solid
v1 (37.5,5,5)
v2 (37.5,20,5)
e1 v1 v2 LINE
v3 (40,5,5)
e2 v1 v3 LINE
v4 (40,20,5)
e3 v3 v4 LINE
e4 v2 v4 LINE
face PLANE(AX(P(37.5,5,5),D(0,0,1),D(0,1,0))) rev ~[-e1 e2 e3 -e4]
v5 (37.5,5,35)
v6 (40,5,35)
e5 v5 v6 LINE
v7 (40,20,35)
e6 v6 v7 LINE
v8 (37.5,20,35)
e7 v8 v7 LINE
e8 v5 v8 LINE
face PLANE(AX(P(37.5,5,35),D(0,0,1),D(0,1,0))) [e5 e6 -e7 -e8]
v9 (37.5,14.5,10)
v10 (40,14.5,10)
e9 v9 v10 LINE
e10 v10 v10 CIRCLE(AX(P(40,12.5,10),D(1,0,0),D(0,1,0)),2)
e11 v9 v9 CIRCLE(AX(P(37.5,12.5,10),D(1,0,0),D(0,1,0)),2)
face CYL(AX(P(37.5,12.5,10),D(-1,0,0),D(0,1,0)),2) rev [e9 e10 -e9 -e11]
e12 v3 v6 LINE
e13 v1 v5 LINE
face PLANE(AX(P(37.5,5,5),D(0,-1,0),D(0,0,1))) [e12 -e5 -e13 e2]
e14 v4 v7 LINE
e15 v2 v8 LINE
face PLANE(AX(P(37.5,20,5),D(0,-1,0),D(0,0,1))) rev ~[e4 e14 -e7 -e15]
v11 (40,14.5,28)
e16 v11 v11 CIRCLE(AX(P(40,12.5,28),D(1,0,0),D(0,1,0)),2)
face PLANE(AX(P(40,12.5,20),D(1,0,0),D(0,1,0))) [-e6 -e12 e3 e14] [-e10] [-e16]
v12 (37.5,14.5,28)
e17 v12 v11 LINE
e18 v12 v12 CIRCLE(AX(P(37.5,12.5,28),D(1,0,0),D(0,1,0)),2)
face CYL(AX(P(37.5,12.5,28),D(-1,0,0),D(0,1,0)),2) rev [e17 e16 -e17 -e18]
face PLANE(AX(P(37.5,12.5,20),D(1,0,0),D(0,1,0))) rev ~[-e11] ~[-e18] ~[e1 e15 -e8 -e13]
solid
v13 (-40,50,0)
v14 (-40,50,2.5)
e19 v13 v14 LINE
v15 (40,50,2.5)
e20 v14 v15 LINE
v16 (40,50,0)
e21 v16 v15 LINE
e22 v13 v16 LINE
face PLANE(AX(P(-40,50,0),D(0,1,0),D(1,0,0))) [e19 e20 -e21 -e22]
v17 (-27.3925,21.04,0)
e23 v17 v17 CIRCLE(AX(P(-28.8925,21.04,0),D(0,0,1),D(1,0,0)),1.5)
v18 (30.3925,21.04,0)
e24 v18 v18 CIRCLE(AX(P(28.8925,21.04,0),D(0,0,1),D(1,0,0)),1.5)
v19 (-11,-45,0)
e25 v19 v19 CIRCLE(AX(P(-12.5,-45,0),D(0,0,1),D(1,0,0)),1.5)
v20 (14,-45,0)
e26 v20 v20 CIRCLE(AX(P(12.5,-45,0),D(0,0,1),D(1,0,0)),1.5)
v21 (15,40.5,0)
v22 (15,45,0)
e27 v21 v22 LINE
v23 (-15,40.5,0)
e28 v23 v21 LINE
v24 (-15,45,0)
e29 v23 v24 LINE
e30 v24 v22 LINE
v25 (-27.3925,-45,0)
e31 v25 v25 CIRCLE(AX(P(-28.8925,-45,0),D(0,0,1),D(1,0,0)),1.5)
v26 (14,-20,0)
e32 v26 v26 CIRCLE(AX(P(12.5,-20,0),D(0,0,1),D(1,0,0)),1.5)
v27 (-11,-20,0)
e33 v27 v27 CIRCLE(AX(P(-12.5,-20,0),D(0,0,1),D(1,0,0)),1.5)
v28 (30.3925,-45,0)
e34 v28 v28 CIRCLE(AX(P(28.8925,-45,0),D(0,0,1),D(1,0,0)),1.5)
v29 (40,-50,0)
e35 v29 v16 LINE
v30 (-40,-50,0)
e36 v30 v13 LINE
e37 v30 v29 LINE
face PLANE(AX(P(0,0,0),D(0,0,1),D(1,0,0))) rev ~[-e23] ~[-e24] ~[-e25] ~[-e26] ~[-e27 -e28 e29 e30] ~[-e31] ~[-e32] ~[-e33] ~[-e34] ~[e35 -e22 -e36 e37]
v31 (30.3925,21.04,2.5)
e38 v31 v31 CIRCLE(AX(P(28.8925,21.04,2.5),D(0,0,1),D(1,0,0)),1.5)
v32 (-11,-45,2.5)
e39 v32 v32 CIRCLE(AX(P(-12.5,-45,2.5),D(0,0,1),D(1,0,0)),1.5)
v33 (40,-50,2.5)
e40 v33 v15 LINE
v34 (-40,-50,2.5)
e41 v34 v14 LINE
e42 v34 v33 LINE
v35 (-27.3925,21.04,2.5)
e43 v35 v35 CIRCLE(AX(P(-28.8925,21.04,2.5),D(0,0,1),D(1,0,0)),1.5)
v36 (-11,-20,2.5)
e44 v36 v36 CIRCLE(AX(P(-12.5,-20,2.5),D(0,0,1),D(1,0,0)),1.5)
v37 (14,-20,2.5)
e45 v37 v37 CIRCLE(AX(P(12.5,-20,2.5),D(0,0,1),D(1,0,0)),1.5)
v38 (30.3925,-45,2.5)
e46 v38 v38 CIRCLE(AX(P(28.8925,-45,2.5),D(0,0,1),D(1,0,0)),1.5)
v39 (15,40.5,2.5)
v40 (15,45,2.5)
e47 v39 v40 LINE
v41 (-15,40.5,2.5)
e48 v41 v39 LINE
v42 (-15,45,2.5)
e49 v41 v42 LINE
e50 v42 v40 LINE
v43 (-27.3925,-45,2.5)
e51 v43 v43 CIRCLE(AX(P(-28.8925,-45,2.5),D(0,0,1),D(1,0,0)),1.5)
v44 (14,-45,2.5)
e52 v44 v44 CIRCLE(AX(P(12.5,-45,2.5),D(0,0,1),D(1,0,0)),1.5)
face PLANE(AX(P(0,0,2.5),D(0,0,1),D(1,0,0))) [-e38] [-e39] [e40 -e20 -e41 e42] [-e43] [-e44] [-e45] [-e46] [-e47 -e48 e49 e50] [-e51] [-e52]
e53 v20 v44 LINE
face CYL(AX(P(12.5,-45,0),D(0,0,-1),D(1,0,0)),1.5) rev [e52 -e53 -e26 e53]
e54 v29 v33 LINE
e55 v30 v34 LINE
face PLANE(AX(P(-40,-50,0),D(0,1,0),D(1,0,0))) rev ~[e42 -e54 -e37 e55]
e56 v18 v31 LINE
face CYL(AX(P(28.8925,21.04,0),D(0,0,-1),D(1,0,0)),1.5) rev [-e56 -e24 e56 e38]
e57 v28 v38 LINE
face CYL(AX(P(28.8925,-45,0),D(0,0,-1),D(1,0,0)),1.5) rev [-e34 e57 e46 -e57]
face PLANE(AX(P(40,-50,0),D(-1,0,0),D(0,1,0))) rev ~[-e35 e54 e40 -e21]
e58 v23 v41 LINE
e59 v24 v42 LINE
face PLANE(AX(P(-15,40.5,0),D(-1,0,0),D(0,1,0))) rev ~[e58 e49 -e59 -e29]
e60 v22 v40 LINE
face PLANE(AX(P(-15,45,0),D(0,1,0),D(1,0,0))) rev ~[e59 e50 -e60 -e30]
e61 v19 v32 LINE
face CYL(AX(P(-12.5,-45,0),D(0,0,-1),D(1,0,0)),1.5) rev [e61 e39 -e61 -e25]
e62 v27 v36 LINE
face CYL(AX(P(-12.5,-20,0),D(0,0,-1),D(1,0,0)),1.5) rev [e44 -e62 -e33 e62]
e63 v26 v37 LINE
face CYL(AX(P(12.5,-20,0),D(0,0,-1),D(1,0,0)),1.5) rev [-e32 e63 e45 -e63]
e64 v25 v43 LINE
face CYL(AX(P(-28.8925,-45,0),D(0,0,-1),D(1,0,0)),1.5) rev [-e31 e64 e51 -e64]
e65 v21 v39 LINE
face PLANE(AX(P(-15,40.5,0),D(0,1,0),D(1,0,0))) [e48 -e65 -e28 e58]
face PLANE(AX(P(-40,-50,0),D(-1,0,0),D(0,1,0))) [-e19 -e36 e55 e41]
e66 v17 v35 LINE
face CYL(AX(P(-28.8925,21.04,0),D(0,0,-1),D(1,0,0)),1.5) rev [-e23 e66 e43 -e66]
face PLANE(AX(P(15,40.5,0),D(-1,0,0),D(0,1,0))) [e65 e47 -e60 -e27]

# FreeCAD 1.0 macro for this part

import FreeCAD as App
import Part
import Sketcher

doc = App.newDocument("Part")
params = doc.addObject("Spreadsheet::Sheet", "Params")
for row, (alias, value) in enumerate([
    ("sketch1_diameter", "3 mm"),
    ("sketch1_width", "80 mm"),
    ("sketch1_width2", "30 mm"),
    ("sketch1_height", "100 mm"),
    ("sketch1_height2", "4.5 mm"),
    ("pad1_length", "2.5 mm"),
    ("sketch2_diameter", "4 mm"),
    ("sketch2_width", "15 mm"),
    ("sketch2_height", "30 mm"),
    ("pad2_length", "2.5 mm"),
], start=1):
    params.set(f"A{row}", alias)
    params.set(f"B{row}", "=" + value)
    params.setAlias(f"B{row}", alias)

body = doc.addObject("PartDesign::Body", "Body")

sketch1 = body.newObject("Sketcher::SketchObject", "Sketch")
sketch1.AttachmentSupport = (doc.getObject("XY_Plane"), [""])
sketch1.MapMode = "FlatFace"
sketch1.addGeometry([
    Part.LineSegment(App.Vector(-40, 50, 0), App.Vector(-40, -50, 0)),
    Part.LineSegment(App.Vector(-40, -50, 0), App.Vector(40, -50, 0)),
    Part.LineSegment(App.Vector(40, -50, 0), App.Vector(40, 50, 0)),
    Part.LineSegment(App.Vector(40, 50, 0), App.Vector(-40, 50, 0)),
    Part.Circle(App.Vector(-28.8925, -45, 0), App.Vector(0, 0, 1), 1.5),
    Part.Circle(App.Vector(-12.5, -45, 0), App.Vector(0, 0, 1), 1.5),
    Part.Circle(App.Vector(-12.5, -20, 0), App.Vector(0, 0, 1), 1.5),
    Part.Circle(App.Vector(12.5, -45, 0), App.Vector(0, 0, 1), 1.5),
    Part.Circle(App.Vector(28.8925, -45, 0), App.Vector(0, 0, 1), 1.5),
    Part.Circle(App.Vector(12.5, -20, 0), App.Vector(0, 0, 1), 1.5),
    Part.Circle(App.Vector(-28.8925, 21.04, 0), App.Vector(0, 0, 1), 1.5),
    Part.Circle(App.Vector(28.8925, 21.04, 0), App.Vector(0, 0, 1), 1.5),
    Part.LineSegment(App.Vector(15, 40.5, 0), App.Vector(-15, 40.5, 0)),
    Part.LineSegment(App.Vector(-15, 40.5, 0), App.Vector(-15, 45, 0)),
    Part.LineSegment(App.Vector(-15, 45, 0), App.Vector(15, 45, 0)),
    Part.LineSegment(App.Vector(15, 45, 0), App.Vector(15, 40.5, 0)),
], False)
sketch1.addConstraint([
    Sketcher.Constraint("Coincident", 0, 2, 1, 1),
    Sketcher.Constraint("Coincident", 1, 2, 2, 1),
    Sketcher.Constraint("Coincident", 2, 2, 3, 1),
    Sketcher.Constraint("Coincident", 3, 2, 0, 1),
    Sketcher.Constraint("Coincident", 12, 2, 13, 1),
    Sketcher.Constraint("Coincident", 13, 2, 14, 1),
    Sketcher.Constraint("Coincident", 14, 2, 15, 1),
    Sketcher.Constraint("Coincident", 15, 2, 12, 1),
    Sketcher.Constraint("Vertical", 0),
    Sketcher.Constraint("Horizontal", 1),
    Sketcher.Constraint("Vertical", 2),
    Sketcher.Constraint("Horizontal", 3),
    Sketcher.Constraint("Horizontal", 12),
    Sketcher.Constraint("Vertical", 13),
    Sketcher.Constraint("Horizontal", 14),
    Sketcher.Constraint("Vertical", 15),
    Sketcher.Constraint("Equal", 4, 5),
    Sketcher.Constraint("Equal", 5, 6),
    Sketcher.Constraint("Equal", 6, 7),
    Sketcher.Constraint("Equal", 7, 8),
    Sketcher.Constraint("Equal", 8, 9),
    Sketcher.Constraint("Equal", 9, 10),
    Sketcher.Constraint("Equal", 10, 11),
    Sketcher.Constraint("Symmetric", 0, 2, 2, 2, -1, 1),
    Sketcher.Constraint("Symmetric", 5, 3, 7, 3, -2),
    Sketcher.Constraint("Symmetric", 4, 3, 8, 3, -2),
    Sketcher.Constraint("Symmetric", 6, 3, 9, 3, -2),
    Sketcher.Constraint("Symmetric", 10, 3, 11, 3, -2),
    Sketcher.Constraint("Horizontal", 4, 3, 5, 3),
    Sketcher.Constraint("Vertical", 5, 3, 6, 3),
    Sketcher.Constraint("Vertical", 4, 3, 10, 3),
    Sketcher.Constraint("Diameter", 4, 3.0),
    Sketcher.Constraint("DistanceX", 1, 1, 1, 2, 80.0),
    Sketcher.Constraint("DistanceX", 12, 2, 12, 1, 30.0),
    Sketcher.Constraint("DistanceY", 0, 2, 0, 1, 100.0),
    Sketcher.Constraint("DistanceY", 13, 1, 13, 2, 4.5),
    Sketcher.Constraint("DistanceY", 4, 3, -1, 1, 45.0),
    Sketcher.Constraint("DistanceY", 6, 3, -1, 1, 20.0),
    Sketcher.Constraint("DistanceX", 12, 2, -1, 1, 15.0),
    Sketcher.Constraint("DistanceY", -1, 1, 13, 2, 45.0),
    Sketcher.Constraint("DistanceX", 5, 3, 7, 3, 25.0),
    Sketcher.Constraint("DistanceY", -1, 1, 10, 3, 21.04),
    Sketcher.Constraint("DistanceX", 4, 3, 8, 3, 57.785),
])
sketch1.setExpression("Constraints[31]", "Params.sketch1_diameter")
sketch1.setExpression("Constraints[32]", "Params.sketch1_width")
sketch1.setExpression("Constraints[33]", "Params.sketch1_width2")
sketch1.setExpression("Constraints[34]", "Params.sketch1_height")
sketch1.setExpression("Constraints[35]", "Params.sketch1_height2")
pad1 = body.newObject("PartDesign::Pad", "Pad")
pad1.Profile = sketch1
pad1.setExpression("Length", "Params.pad1_length")
body2 = doc.addObject("PartDesign::Body", "Body001")

sketch2 = body2.newObject("Sketcher::SketchObject", "Sketch001")
sketch2.AttachmentSupport = (doc.getObject("YZ_Plane001"), [""])
sketch2.MapMode = "FlatFace"
sketch2.addGeometry([
    Part.LineSegment(App.Vector(5, 35, 0), App.Vector(5, 5, 0)),
    Part.LineSegment(App.Vector(5, 5, 0), App.Vector(20, 5, 0)),
    Part.LineSegment(App.Vector(20, 5, 0), App.Vector(20, 35, 0)),
    Part.LineSegment(App.Vector(20, 35, 0), App.Vector(5, 35, 0)),
    Part.Circle(App.Vector(12.5, 10, 0), App.Vector(0, 0, 1), 2),
    Part.Circle(App.Vector(12.5, 28, 0), App.Vector(0, 0, 1), 2),
], False)
sketch2.addConstraint([
    Sketcher.Constraint("Coincident", 0, 2, 1, 1),
    Sketcher.Constraint("Coincident", 1, 2, 2, 1),
    Sketcher.Constraint("Coincident", 2, 2, 3, 1),
    Sketcher.Constraint("Coincident", 3, 2, 0, 1),
    Sketcher.Constraint("Vertical", 0),
    Sketcher.Constraint("Horizontal", 1),
    Sketcher.Constraint("Vertical", 2),
    Sketcher.Constraint("Horizontal", 3),
    Sketcher.Constraint("Equal", 4, 5),
    Sketcher.Constraint("Vertical", 4, 3, 5, 3),
    Sketcher.Constraint("Diameter", 4, 4.0),
    Sketcher.Constraint("DistanceX", 1, 1, 1, 2, 15.0),
    Sketcher.Constraint("DistanceY", 0, 2, 0, 1, 30.0),
    Sketcher.Constraint("DistanceY", -1, 1, 4, 3, 10.0),
    Sketcher.Constraint("DistanceY", -1, 1, 5, 3, 28.0),
    Sketcher.Constraint("DistanceX", -1, 1, 0, 2, 5.0),
    Sketcher.Constraint("DistanceY", -1, 1, 0, 2, 5.0),
    Sketcher.Constraint("DistanceX", -1, 1, 4, 3, 12.5),
])
sketch2.setExpression("Constraints[10]", "Params.sketch2_diameter")
sketch2.setExpression("Constraints[11]", "Params.sketch2_width")
sketch2.setExpression("Constraints[12]", "Params.sketch2_height")
pad2 = body2.newObject("PartDesign::Pad", "Pad001")
pad2.Profile = sketch2
pad2.setExpression("Length", "Params.pad2_length")
body3 = doc.addObject("PartDesign::Body", "Body002")
doc.recompute()

body2.Placement = App.Placement(App.Vector(37.5, 0, 0), App.Rotation(App.Vector(0, 0, 1), 0))
boolean = body3.newObject("PartDesign::Boolean", "Boolean")
boolean.Type = "Fuse"
boolean.addObjects([body2])

doc.recompute()
